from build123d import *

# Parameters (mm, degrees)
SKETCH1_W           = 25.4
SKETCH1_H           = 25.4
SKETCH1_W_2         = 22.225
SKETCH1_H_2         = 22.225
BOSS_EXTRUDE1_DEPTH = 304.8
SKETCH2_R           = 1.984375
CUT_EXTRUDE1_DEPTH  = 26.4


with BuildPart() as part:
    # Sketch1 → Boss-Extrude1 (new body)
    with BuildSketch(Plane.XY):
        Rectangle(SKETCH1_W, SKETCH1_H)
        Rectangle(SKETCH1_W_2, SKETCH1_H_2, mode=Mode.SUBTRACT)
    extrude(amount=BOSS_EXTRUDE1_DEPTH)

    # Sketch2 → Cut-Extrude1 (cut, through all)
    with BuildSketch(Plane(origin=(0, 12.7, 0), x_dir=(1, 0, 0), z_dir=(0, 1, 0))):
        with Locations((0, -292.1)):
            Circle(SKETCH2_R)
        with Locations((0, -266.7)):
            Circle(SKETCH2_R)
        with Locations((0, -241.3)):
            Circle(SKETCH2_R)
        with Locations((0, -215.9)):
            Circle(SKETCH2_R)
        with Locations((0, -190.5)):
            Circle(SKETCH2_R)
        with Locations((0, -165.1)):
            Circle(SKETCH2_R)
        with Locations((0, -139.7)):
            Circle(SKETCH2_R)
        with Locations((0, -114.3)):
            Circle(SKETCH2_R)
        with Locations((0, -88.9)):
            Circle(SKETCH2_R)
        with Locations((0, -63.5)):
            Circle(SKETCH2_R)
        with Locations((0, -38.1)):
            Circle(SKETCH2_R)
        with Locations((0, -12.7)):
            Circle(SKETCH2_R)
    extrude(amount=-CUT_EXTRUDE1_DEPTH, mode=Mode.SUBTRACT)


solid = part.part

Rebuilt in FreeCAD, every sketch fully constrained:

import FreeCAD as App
import Part
import Sketcher
Q = App.Units.Quantity

doc = App.newDocument("Part")
body = doc.addObject("PartDesign::Body", "Body")

# Sketch on XY plane
sketch1 = body.newObject("Sketcher::SketchObject", "Sketch")
sketch1.AttachmentSupport = (doc.getObject("XY_Plane"), [""])
sketch1.MapMode = "FlatFace"
sketch1.addGeometry([
    Part.LineSegment(App.Vector(-13, 13, 0), App.Vector(-13, -13, 0)),  # 0
    Part.LineSegment(App.Vector(-13, -13, 0), App.Vector(13, -13, 0)),  # 1
    Part.LineSegment(App.Vector(13, -13, 0), App.Vector(13, 13, 0)),  # 2
    Part.LineSegment(App.Vector(13, 13, 0), App.Vector(-13, 13, 0)),  # 3
    Part.LineSegment(App.Vector(11, -11, 0), App.Vector(-11, -11, 0)),  # 4
    Part.LineSegment(App.Vector(-11, -11, 0), App.Vector(-11, 11, 0)),  # 5
    Part.LineSegment(App.Vector(-11, 11, 0), App.Vector(11, 11, 0)),  # 6
    Part.LineSegment(App.Vector(11, 11, 0), App.Vector(11, -11, 0)),  # 7
], False)
sketch1.addConstraint([
    Sketcher.Constraint("Coincident", 0, 2, 1, 1),
    Sketcher.Constraint("Coincident", 1, 2, 2, 1),
    Sketcher.Constraint("Coincident", 2, 2, 3, 1),
    Sketcher.Constraint("Coincident", 3, 2, 0, 1),
    Sketcher.Constraint("Coincident", 4, 2, 5, 1),
    Sketcher.Constraint("Coincident", 5, 2, 6, 1),
    Sketcher.Constraint("Coincident", 6, 2, 7, 1),
    Sketcher.Constraint("Coincident", 7, 2, 4, 1),
    Sketcher.Constraint("Vertical", 0),
    Sketcher.Constraint("Horizontal", 1),
    Sketcher.Constraint("Vertical", 2),
    Sketcher.Constraint("Horizontal", 3),
    Sketcher.Constraint("Horizontal", 4),
    Sketcher.Constraint("Vertical", 5),
    Sketcher.Constraint("Horizontal", 6),
    Sketcher.Constraint("Vertical", 7),
    Sketcher.Constraint("Symmetric", 0, 2, 2, 2, -1, 1),
    Sketcher.Constraint("Symmetric", 4, 2, 6, 2, -1, 1),
    Sketcher.Constraint("Equal", 3, 0),
    Sketcher.Constraint("Equal", 6, 5),
    Sketcher.Constraint("DistanceX", 1, 1, 1, 2, Q("1 in")),
    Sketcher.Constraint("DistanceX", 4, 2, 4, 1, Q("0.875 in")),
])
pad1 = body.newObject("PartDesign::Pad", "Pad")
pad1.Profile = sketch1
pad1.Length = Q("12 in")

# Sketch on XZ plane
sketch2 = body.newObject("Sketcher::SketchObject", "Sketch001")
sketch2.AttachmentSupport = (doc.getObject("XZ_Plane"), [""])
sketch2.MapMode = "FlatFace"
sketch2.AttachmentOffset = App.Placement(App.Vector(0, 0, -0.5 * 25.4), App.Rotation())
sketch2.addGeometry([
    Part.Circle(App.Vector(0, 292.1, 0), App.Vector(0, 0, 1), 2),  # 0
    Part.Circle(App.Vector(0, 266.7, 0), App.Vector(0, 0, 1), 2),  # 1
    Part.Circle(App.Vector(0, 241.3, 0), App.Vector(0, 0, 1), 2),  # 2
    Part.Circle(App.Vector(0, 215.9, 0), App.Vector(0, 0, 1), 2),  # 3
    Part.Circle(App.Vector(0, 190.5, 0), App.Vector(0, 0, 1), 2),  # 4
    Part.Circle(App.Vector(0, 165.1, 0), App.Vector(0, 0, 1), 2),  # 5
    Part.Circle(App.Vector(0, 139.7, 0), App.Vector(0, 0, 1), 2),  # 6
    Part.Circle(App.Vector(0, 114.3, 0), App.Vector(0, 0, 1), 2),  # 7
    Part.Circle(App.Vector(0, 88.9, 0), App.Vector(0, 0, 1), 2),  # 8
    Part.Circle(App.Vector(0, 63.5, 0), App.Vector(0, 0, 1), 2),  # 9
    Part.Circle(App.Vector(0, 38.1, 0), App.Vector(0, 0, 1), 2),  # 10
    Part.Circle(App.Vector(0, 12.7, 0), App.Vector(0, 0, 1), 2),  # 11
], False)
sketch2.addConstraint([
    Sketcher.Constraint("Equal", 0, 1),
    Sketcher.Constraint("Equal", 1, 2),
    Sketcher.Constraint("Equal", 2, 3),
    Sketcher.Constraint("Equal", 3, 4),
    Sketcher.Constraint("Equal", 4, 5),
    Sketcher.Constraint("Equal", 5, 6),
    Sketcher.Constraint("Equal", 6, 7),
    Sketcher.Constraint("Equal", 7, 8),
    Sketcher.Constraint("Equal", 8, 9),
    Sketcher.Constraint("Equal", 9, 10),
    Sketcher.Constraint("Equal", 10, 11),
    Sketcher.Constraint("PointOnObject", 0, 3, -2),
    Sketcher.Constraint("PointOnObject", 1, 3, -2),
    Sketcher.Constraint("PointOnObject", 2, 3, -2),
    Sketcher.Constraint("PointOnObject", 3, 3, -2),
    Sketcher.Constraint("PointOnObject", 4, 3, -2),
    Sketcher.Constraint("PointOnObject", 5, 3, -2),
    Sketcher.Constraint("PointOnObject", 6, 3, -2),
    Sketcher.Constraint("PointOnObject", 7, 3, -2),
    Sketcher.Constraint("PointOnObject", 8, 3, -2),
    Sketcher.Constraint("PointOnObject", 9, 3, -2),
    Sketcher.Constraint("PointOnObject", 10, 3, -2),
    Sketcher.Constraint("PointOnObject", 11, 3, -2),
    Sketcher.Constraint("Diameter", 0, Q("0.15625 in")),
    Sketcher.Constraint("DistanceY", 1, 3, 0, 3, Q("1 in")),
    Sketcher.Constraint("DistanceY", 2, 3, 1, 3, Q("1 in")),
    Sketcher.Constraint("DistanceY", 3, 3, 2, 3, Q("1 in")),
    Sketcher.Constraint("DistanceY", 4, 3, 3, 3, Q("1 in")),
    Sketcher.Constraint("DistanceY", 5, 3, 4, 3, Q("1 in")),
    Sketcher.Constraint("DistanceY", 6, 3, 5, 3, Q("1 in")),
    Sketcher.Constraint("DistanceY", 7, 3, 6, 3, Q("1 in")),
    Sketcher.Constraint("DistanceY", 8, 3, 7, 3, Q("1 in")),
    Sketcher.Constraint("DistanceY", 9, 3, 8, 3, Q("1 in")),
    Sketcher.Constraint("DistanceY", 10, 3, 9, 3, Q("1 in")),
    Sketcher.Constraint("DistanceY", 11, 3, 10, 3, Q("1 in")),
    Sketcher.Constraint("DistanceY", -1, 1, 0, 3, Q("11.5 in")),
])
pocket1 = body.newObject("PartDesign::Pocket", "Pocket")
pocket1.Profile = sketch2
pocket1.Type = "ThroughAll"
pocket1.Reversed = True

doc.recompute()
